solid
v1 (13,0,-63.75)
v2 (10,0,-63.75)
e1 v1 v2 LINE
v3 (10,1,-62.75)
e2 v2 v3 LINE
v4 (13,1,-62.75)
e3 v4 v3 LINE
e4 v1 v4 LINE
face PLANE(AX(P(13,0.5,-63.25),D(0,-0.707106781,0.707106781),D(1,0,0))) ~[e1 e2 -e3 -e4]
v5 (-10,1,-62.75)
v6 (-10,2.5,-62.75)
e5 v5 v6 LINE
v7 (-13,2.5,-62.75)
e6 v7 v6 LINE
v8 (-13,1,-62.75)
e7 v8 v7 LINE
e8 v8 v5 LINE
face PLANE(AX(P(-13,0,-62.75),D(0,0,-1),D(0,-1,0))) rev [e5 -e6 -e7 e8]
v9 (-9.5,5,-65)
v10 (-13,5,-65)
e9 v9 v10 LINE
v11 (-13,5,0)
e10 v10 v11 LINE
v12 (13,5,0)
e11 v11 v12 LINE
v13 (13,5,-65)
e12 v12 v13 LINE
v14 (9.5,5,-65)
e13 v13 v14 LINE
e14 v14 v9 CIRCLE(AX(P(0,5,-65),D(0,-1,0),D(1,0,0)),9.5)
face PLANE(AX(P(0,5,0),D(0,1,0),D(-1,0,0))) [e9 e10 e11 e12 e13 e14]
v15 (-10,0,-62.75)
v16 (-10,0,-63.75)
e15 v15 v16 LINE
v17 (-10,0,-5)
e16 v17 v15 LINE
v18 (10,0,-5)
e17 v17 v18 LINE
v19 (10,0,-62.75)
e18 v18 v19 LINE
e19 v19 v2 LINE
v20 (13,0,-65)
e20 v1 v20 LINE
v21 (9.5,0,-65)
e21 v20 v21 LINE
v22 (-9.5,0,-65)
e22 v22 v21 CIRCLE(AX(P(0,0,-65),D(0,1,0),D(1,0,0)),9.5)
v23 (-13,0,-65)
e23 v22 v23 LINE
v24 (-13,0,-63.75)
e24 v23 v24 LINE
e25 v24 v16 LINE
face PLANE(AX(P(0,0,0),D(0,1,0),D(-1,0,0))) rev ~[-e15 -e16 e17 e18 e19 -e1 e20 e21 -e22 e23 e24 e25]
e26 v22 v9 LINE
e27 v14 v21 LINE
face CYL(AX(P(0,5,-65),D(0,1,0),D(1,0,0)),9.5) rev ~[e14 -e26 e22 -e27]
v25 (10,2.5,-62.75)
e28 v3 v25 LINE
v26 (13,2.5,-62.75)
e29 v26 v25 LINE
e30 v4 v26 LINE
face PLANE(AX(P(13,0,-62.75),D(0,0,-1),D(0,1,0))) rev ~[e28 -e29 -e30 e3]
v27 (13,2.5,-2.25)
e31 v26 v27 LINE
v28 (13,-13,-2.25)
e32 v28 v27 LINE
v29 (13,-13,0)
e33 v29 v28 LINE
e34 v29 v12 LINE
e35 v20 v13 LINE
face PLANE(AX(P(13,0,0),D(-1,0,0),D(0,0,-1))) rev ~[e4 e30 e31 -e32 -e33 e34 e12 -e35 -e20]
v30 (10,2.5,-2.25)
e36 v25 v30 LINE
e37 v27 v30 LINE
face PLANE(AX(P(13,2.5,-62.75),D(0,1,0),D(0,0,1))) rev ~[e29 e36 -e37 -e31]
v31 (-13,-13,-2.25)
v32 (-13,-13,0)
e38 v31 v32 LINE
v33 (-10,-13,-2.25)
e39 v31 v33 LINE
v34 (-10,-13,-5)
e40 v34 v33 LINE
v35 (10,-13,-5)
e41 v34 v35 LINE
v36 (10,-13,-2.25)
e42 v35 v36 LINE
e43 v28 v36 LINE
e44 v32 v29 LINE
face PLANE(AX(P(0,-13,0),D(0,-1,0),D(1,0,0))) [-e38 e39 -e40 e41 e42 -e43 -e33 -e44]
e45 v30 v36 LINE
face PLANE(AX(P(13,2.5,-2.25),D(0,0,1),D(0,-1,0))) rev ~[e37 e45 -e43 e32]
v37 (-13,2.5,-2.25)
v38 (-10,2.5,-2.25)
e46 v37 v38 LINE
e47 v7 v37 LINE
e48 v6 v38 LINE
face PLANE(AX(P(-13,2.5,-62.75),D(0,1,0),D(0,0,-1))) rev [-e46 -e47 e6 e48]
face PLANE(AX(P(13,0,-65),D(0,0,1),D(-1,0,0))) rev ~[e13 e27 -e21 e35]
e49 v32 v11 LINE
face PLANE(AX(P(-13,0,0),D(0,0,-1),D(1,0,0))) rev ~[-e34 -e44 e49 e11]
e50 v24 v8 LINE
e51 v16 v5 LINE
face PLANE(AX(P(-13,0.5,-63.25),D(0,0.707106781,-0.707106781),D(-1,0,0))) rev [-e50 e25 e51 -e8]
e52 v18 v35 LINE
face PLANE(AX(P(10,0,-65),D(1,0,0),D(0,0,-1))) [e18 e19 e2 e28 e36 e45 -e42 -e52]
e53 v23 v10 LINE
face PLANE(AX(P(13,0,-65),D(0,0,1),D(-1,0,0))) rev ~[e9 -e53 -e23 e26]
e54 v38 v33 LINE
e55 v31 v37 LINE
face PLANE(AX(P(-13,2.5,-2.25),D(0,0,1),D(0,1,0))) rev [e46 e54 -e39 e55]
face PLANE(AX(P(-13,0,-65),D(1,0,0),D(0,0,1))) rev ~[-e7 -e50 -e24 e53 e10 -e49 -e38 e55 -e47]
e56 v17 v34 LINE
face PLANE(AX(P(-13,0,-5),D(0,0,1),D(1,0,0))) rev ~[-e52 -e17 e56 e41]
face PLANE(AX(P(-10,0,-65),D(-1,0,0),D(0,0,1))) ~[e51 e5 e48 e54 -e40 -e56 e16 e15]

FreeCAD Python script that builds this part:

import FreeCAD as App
import Part
import Sketcher
from FreeCAD import Vector


def edges_at(feature, points):
    """Names of the edges that pass closest to the given points."""
    edges = feature.Shape.Edges
    near = lambda p: min(range(len(edges)), key=lambda i: edges[i].distToShape(Part.Vertex(*p))[0])
    return sorted({f"Edge{near(p) + 1}" for p in points})


def add_polygon(sketch, points):
    """Adds a closed chain of lines whose ends are joined by coincident constraints."""
    first, n = sketch.GeometryCount, len(points)
    for a, b in zip(points, points[1:] + points[:1]):
        sketch.addGeometry(Part.LineSegment(App.Vector(*a, 0), App.Vector(*b, 0)), False)
    for i in range(n):
        sketch.addConstraint(Sketcher.Constraint("Coincident", first + i, 2, first + (i + 1) % n, 1))

doc = App.newDocument("Part")
body = doc.addObject("PartDesign::Body", "Body")

# Sketch on XZ plane
sketch1 = body.newObject("Sketcher::SketchObject", "Sketch")
sketch1.AttachmentSupport = (doc.getObject("XZ_Plane"), [""])
sketch1.MapMode = "FlatFace"
add_polygon(sketch1, [(-13, -65), (-13, 0), (13, 0), (13, -65)])  # lines 0-3
sketch1.addConstraint(Sketcher.Constraint("Vertical", 0))
sketch1.addConstraint(Sketcher.Constraint("Horizontal", 1))
sketch1.addConstraint(Sketcher.Constraint("Vertical", 2))
sketch1.addConstraint(Sketcher.Constraint("Horizontal", 3))
sketch1.addConstraint(Sketcher.Constraint("Symmetric", 0, 2, 1, 2, -1, 1))
sketch1.addConstraint(Sketcher.Constraint("DistanceX", 1, 1, 1, 2, 26.0))
sketch1.addConstraint(Sketcher.Constraint("DistanceY", 0, 1, 0, 2, 65.0))
pad1 = body.newObject("PartDesign::Pad", "Pad")
pad1.Profile = sketch1
pad1.Length = 5
pad1.Reversed = True

# Sketch on XZ plane
sketch2 = body.newObject("Sketcher::SketchObject", "Sketch001")
sketch2.AttachmentSupport = (doc.getObject("XZ_Plane"), [""])
sketch2.MapMode = "FlatFace"
add_polygon(sketch2, [(13, 0), (-13, 0), (-13, -5), (13, -5)])  # lines 0-3
sketch2.addConstraint(Sketcher.Constraint("Horizontal", 0))
sketch2.addConstraint(Sketcher.Constraint("Vertical", 1))
sketch2.addConstraint(Sketcher.Constraint("Horizontal", 2))
sketch2.addConstraint(Sketcher.Constraint("Vertical", 3))
sketch2.addConstraint(Sketcher.Constraint("Symmetric", 0, 2, 3, 2, -1, 1))
sketch2.addConstraint(Sketcher.Constraint("DistanceY", 1, 2, 1, 1, 5.0))
sketch2.addConstraint(Sketcher.Constraint("DistanceX", 0, 2, 0, 1, 26.0))
pad2 = body.newObject("PartDesign::Pad", "Pad001")
pad2.Profile = sketch2
pad2.Length = 13

# Sketch on XZ plane
sketch3 = body.newObject("Sketcher::SketchObject", "Sketch002")
sketch3.AttachmentSupport = (doc.getObject("XZ_Plane"), [""])
sketch3.MapMode = "FlatFace"
sketch3.AttachmentOffset = App.Placement(Vector(0, 0, -5), App.Rotation())
sketch3.addGeometry(Part.Circle(Vector(0, -65, 0), Vector(0, 0, 1), 10), False)
sketch3.addConstraint(Sketcher.Constraint("PointOnObject", 0, 3, -2))
sketch3.addConstraint(Sketcher.Constraint("Diameter", 0, 19.0))
sketch3.addConstraint(Sketcher.Constraint("DistanceY", 0, 3, -1, 1, 65.0))
pocket1 = body.newObject("PartDesign::Pocket", "Pocket")
pocket1.Profile = sketch3
pocket1.Type = "ThroughAll"
pocket1.Reversed = True

# Sketch on YZ plane
sketch4 = body.newObject("Sketcher::SketchObject", "Sketch003")
sketch4.AttachmentSupport = (doc.getObject("YZ_Plane"), [""])
sketch4.MapMode = "FlatFace"
sketch4.AttachmentOffset = App.Placement(Vector(0, 0, 13), App.Rotation())
add_polygon(sketch4, [(2.5, -2.2), (-13, -2.2), (-13, -5), (0, -5), (0, -62.8), (2.5, -62.8)])  # lines 0-5
sketch4.addConstraint(Sketcher.Constraint("Horizontal", 0))
sketch4.addConstraint(Sketcher.Constraint("Vertical", 1))
sketch4.addConstraint(Sketcher.Constraint("Horizontal", 2))
sketch4.addConstraint(Sketcher.Constraint("Vertical", 3))
sketch4.addConstraint(Sketcher.Constraint("Horizontal", 4))
sketch4.addConstraint(Sketcher.Constraint("Vertical", 5))
sketch4.addConstraint(Sketcher.Constraint("PointOnObject", 2, 2, -2))
sketch4.addConstraint(Sketcher.Constraint("DistanceX", 4, 1, 4, 2, 2.5))
sketch4.addConstraint(Sketcher.Constraint("DistanceY", 1, 2, 1, 1, 2.75))
sketch4.addConstraint(Sketcher.Constraint("DistanceX", 2, 1, 2, 2, 13.0))
sketch4.addConstraint(Sketcher.Constraint("DistanceY", 0, 2, -1, 1, 2.25))
sketch4.addConstraint(Sketcher.Constraint("DistanceY", 5, 1, 5, 2, 60.5))
pocket2 = body.newObject("PartDesign::Pocket", "Pocket001")
pocket2.Profile = sketch4
pocket2.Length = 3
doc.recompute()

mirrored = body.newObject("PartDesign::Mirrored", "Mirrored")
mirrored.Originals = [pocket2]
mirrored.MirrorPlane = (doc.getObject("YZ_Plane"), [""])
body.Tip = mirrored
doc.recompute()

chamfer = body.newObject("PartDesign::Chamfer", "Chamfer")
chamfer.Base = (mirrored, edges_at(mirrored, [(11.5, 0, -62.75), (-11.5, 0, -62.75)]))
chamfer.Size = 1

doc.recompute()
